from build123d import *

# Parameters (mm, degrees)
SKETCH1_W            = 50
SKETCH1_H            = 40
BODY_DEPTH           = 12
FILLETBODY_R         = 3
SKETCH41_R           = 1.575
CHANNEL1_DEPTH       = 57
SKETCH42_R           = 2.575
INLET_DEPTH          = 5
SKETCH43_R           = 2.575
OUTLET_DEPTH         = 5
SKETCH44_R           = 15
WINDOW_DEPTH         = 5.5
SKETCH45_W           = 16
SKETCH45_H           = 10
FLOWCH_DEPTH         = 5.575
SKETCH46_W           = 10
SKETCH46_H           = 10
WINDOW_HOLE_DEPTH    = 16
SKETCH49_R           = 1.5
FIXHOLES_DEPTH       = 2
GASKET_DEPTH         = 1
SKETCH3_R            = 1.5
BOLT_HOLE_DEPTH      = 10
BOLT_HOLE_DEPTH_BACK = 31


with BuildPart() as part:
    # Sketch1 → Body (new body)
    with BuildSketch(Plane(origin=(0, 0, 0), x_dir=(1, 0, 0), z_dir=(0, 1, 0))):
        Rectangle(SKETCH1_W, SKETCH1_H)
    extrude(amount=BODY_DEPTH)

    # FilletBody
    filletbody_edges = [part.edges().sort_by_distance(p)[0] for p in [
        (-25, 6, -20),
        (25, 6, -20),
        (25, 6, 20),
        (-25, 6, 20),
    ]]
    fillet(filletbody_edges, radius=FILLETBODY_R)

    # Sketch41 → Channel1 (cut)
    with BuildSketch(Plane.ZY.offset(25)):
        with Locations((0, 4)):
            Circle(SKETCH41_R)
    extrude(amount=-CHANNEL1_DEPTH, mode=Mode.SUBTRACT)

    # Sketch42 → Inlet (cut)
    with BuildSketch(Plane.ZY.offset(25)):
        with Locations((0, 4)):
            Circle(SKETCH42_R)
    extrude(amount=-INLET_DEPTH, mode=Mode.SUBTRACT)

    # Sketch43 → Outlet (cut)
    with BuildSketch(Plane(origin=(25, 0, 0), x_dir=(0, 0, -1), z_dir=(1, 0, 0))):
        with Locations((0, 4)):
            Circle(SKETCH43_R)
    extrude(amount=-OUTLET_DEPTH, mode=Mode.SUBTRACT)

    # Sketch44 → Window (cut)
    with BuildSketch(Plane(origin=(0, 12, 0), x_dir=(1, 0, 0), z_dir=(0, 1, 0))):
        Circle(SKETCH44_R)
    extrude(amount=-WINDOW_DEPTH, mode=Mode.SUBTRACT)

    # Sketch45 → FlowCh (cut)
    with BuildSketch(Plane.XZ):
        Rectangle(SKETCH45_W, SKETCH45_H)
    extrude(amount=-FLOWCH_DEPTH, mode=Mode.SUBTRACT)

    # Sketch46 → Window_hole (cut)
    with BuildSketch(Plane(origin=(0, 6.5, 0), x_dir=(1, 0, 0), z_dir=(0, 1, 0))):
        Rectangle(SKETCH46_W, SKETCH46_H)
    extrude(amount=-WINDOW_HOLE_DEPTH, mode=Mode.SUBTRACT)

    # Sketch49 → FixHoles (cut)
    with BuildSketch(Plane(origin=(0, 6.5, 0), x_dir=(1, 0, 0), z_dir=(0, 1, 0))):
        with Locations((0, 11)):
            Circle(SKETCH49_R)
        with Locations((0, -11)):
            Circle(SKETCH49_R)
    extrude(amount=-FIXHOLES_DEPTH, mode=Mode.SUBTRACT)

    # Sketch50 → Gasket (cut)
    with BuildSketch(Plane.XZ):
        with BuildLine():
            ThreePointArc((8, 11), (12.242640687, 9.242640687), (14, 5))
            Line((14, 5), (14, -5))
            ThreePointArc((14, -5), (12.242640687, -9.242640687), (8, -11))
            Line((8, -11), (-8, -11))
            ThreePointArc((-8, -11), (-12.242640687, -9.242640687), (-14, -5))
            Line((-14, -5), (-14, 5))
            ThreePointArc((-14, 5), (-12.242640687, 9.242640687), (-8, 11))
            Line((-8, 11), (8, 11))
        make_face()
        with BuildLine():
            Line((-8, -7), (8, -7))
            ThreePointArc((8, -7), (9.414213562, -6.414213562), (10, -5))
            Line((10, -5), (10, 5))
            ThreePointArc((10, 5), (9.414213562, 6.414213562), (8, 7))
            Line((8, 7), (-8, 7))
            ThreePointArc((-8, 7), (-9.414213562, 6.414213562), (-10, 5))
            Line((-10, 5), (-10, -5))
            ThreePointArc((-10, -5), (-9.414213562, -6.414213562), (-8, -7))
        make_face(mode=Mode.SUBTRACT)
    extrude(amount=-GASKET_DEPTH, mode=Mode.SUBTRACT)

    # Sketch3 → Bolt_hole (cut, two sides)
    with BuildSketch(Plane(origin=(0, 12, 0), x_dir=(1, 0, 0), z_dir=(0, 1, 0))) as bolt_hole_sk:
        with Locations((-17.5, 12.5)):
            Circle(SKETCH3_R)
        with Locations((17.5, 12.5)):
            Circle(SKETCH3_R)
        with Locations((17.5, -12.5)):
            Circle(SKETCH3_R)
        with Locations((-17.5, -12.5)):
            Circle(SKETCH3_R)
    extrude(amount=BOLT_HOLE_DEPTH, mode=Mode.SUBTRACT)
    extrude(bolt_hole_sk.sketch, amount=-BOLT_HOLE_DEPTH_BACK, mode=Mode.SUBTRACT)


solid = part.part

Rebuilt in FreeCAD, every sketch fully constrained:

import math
import FreeCAD as App
import Part
import Sketcher

V = App.Vector


def edges_at(feature, points):
    """Names of the edges that pass closest to the given points."""
    edges = feature.Shape.Edges
    near = lambda p: min(range(len(edges)), key=lambda i: edges[i].distToShape(Part.Vertex(*p))[0])
    return sorted({f"Edge{near(p) + 1}" for p in points})

doc = App.newDocument("Part")
params = doc.addObject("Spreadsheet::Sheet", "Params")
for row, (alias, value) in enumerate([
    ("sketch1_width", "50 mm"),
    ("sketch1_height", "40 mm"),
    ("pad1_length", "12 mm"),
    ("fillet_radius", "3 mm"),
    ("sketch2_diameter", "3.15 mm"),
    ("pocket1_length", "57 mm"),
    ("sketch3_diameter", "5.15 mm"),
    ("pocket2_length", "5 mm"),
    ("sketch4_diameter", "5.15 mm"),
    ("pocket3_length", "5 mm"),
    ("sketch5_diameter", "30 mm"),
    ("pocket4_length", "5.5 mm"),
    ("sketch6_width", "16 mm"),
    ("sketch6_height", "10 mm"),
    ("pocket5_length", "5.575 mm"),
    ("sketch7_width", "10 mm"),
    ("pocket6_length", "16 mm"),
    ("sketch8_diameter", "3 mm"),
    ("pocket7_length", "2 mm"),
    ("sketch9_radius", "6 mm"),
    ("sketch9_radius2", "2 mm"),
    ("sketch9_width", "16 mm"),
    ("sketch9_height", "10 mm"),
    ("pocket8_length", "1 mm"),
    ("sketch10_diameter", "3 mm"),
], start=1):
    params.set(f"A{row}", alias)
    params.set(f"B{row}", "=" + value)
    params.setAlias(f"B{row}", alias)

body = doc.addObject("PartDesign::Body", "Body")

# Sketch on XZ plane
sketch1 = doc.addObject("Sketcher::SketchObject", "Sketch")
body.addObject(sketch1)
sketch1.AttachmentSupport = (doc.XZ_Plane, [""])
sketch1.MapMode = "FlatFace"
sketch1.addGeometry([
    Part.LineSegment(V(-25, -20, 0), V(-25, 20, 0)),
    Part.LineSegment(V(-25, 20, 0), V(25, 20, 0)),
    Part.LineSegment(V(25, 20, 0), V(25, -20, 0)),
    Part.LineSegment(V(25, -20, 0), V(-25, -20, 0)),
], False)
sketch1.addConstraint([
    Sketcher.Constraint("Coincident", 0, 2, 1, 1),
    Sketcher.Constraint("Coincident", 1, 2, 2, 1),
    Sketcher.Constraint("Coincident", 2, 2, 3, 1),
    Sketcher.Constraint("Coincident", 3, 2, 0, 1),
    Sketcher.Constraint("Vertical", 0),
    Sketcher.Constraint("Horizontal", 1),
    Sketcher.Constraint("Vertical", 2),
    Sketcher.Constraint("Horizontal", 3),
    Sketcher.Constraint("Symmetric", 0, 2, 2, 2, -1, 1),
    Sketcher.Constraint("DistanceX", 1, 1, 1, 2, 50.0),
    Sketcher.Constraint("DistanceY", 0, 1, 0, 2, 40.0),
])
sketch1.setExpression("Constraints[9]", "Params.sketch1_width")
sketch1.setExpression("Constraints[10]", "Params.sketch1_height")
pad1 = doc.addObject("PartDesign::Pad", "Pad")
body.addObject(pad1)
pad1.Profile = sketch1
pad1.setExpression("Length", "Params.pad1_length")
pad1.Reversed = True
doc.recompute()

fillet = doc.addObject("PartDesign::Fillet", "Fillet")
body.addObject(fillet)
fillet.Base = (pad1, edges_at(pad1, [
    (-25, 6, -20),
    (25, 6, -20),
    (25, 6, 20),
    (-25, 6, 20),
]))
fillet.setExpression("Radius", "Params.fillet_radius")

# Sketch on YZ plane
sketch2 = doc.addObject("Sketcher::SketchObject", "Sketch001")
body.addObject(sketch2)
sketch2.AttachmentSupport = (doc.YZ_Plane, [""])
sketch2.MapMode = "FlatFace"
sketch2.AttachmentOffset = App.Placement(V(0, 0, -25), App.Rotation())
sketch2.addGeometry(Part.Circle(V(4, 0, 0), V(0, 0, 1), 1.6), False)
sketch2.addConstraint([
    Sketcher.Constraint("PointOnObject", 0, 3, -1),
    Sketcher.Constraint("Diameter", 0, 3.15),
    Sketcher.Constraint("DistanceX", -1, 1, 0, 3, 4.0),
])
sketch2.setExpression("Constraints[1]", "Params.sketch2_diameter")
pocket1 = doc.addObject("PartDesign::Pocket", "Pocket")
body.addObject(pocket1)
pocket1.Profile = sketch2
pocket1.setExpression("Length", "Params.pocket1_length")
pocket1.Reversed = True

# Sketch on YZ plane
sketch3 = doc.addObject("Sketcher::SketchObject", "Sketch002")
body.addObject(sketch3)
sketch3.AttachmentSupport = (doc.YZ_Plane, [""])
sketch3.MapMode = "FlatFace"
sketch3.AttachmentOffset = App.Placement(V(0, 0, -25), App.Rotation())
sketch3.addGeometry(Part.Circle(V(4, 0, 0), V(0, 0, 1), 2.6), False)
sketch3.addConstraint([
    Sketcher.Constraint("PointOnObject", 0, 3, -1),
    Sketcher.Constraint("Diameter", 0, 5.15),
    Sketcher.Constraint("DistanceX", -1, 1, 0, 3, 4.0),
])
sketch3.setExpression("Constraints[1]", "Params.sketch3_diameter")
pocket2 = doc.addObject("PartDesign::Pocket", "Pocket001")
body.addObject(pocket2)
pocket2.Profile = sketch3
pocket2.setExpression("Length", "Params.pocket2_length")
pocket2.Reversed = True

# Sketch on YZ plane
sketch4 = doc.addObject("Sketcher::SketchObject", "Sketch003")
body.addObject(sketch4)
sketch4.AttachmentSupport = (doc.YZ_Plane, [""])
sketch4.MapMode = "FlatFace"
sketch4.AttachmentOffset = App.Placement(V(0, 0, 25), App.Rotation())
sketch4.addGeometry(Part.Circle(V(4, 0, 0), V(0, 0, 1), 2.6), False)
sketch4.addConstraint([
    Sketcher.Constraint("PointOnObject", 0, 3, -1),
    Sketcher.Constraint("Diameter", 0, 5.15),
    Sketcher.Constraint("DistanceX", -1, 1, 0, 3, 4.0),
])
sketch4.setExpression("Constraints[1]", "Params.sketch4_diameter")
pocket3 = doc.addObject("PartDesign::Pocket", "Pocket002")
body.addObject(pocket3)
pocket3.Profile = sketch4
pocket3.setExpression("Length", "Params.pocket3_length")

# Sketch on XZ plane
sketch5 = doc.addObject("Sketcher::SketchObject", "Sketch004")
body.addObject(sketch5)
sketch5.AttachmentSupport = (doc.XZ_Plane, [""])
sketch5.MapMode = "FlatFace"
sketch5.AttachmentOffset = App.Placement(V(0, 0, -12), App.Rotation())
sketch5.addGeometry(Part.Circle(V(0, 0, 0), V(0, 0, 1), 15), False)
sketch5.addConstraint([
    Sketcher.Constraint("Coincident", 0, 3, -1, 1),
    Sketcher.Constraint("Diameter", 0, 30.0),
])
sketch5.setExpression("Constraints[1]", "Params.sketch5_diameter")
pocket4 = doc.addObject("PartDesign::Pocket", "Pocket003")
body.addObject(pocket4)
pocket4.Profile = sketch5
pocket4.setExpression("Length", "Params.pocket4_length")
pocket4.Reversed = True

# Sketch on XZ plane
sketch6 = doc.addObject("Sketcher::SketchObject", "Sketch005")
body.addObject(sketch6)
sketch6.AttachmentSupport = (doc.XZ_Plane, [""])
sketch6.MapMode = "FlatFace"
sketch6.addGeometry([
    Part.LineSegment(V(-8, 5, 0), V(-8, -5, 0)),
    Part.LineSegment(V(-8, -5, 0), V(8, -5, 0)),
    Part.LineSegment(V(8, -5, 0), V(8, 5, 0)),
    Part.LineSegment(V(8, 5, 0), V(-8, 5, 0)),
], False)
sketch6.addConstraint([
    Sketcher.Constraint("Coincident", 0, 2, 1, 1),
    Sketcher.Constraint("Coincident", 1, 2, 2, 1),
    Sketcher.Constraint("Coincident", 2, 2, 3, 1),
    Sketcher.Constraint("Coincident", 3, 2, 0, 1),
    Sketcher.Constraint("Vertical", 0),
    Sketcher.Constraint("Horizontal", 1),
    Sketcher.Constraint("Vertical", 2),
    Sketcher.Constraint("Horizontal", 3),
    Sketcher.Constraint("Symmetric", 0, 2, 2, 2, -1, 1),
    Sketcher.Constraint("DistanceX", 1, 1, 1, 2, 16.0),
    Sketcher.Constraint("DistanceY", 0, 2, 0, 1, 10.0),
])
sketch6.setExpression("Constraints[9]", "Params.sketch6_width")
sketch6.setExpression("Constraints[10]", "Params.sketch6_height")
pocket5 = doc.addObject("PartDesign::Pocket", "Pocket004")
body.addObject(pocket5)
pocket5.Profile = sketch6
pocket5.setExpression("Length", "Params.pocket5_length")

# Sketch on XZ plane
sketch7 = doc.addObject("Sketcher::SketchObject", "Sketch006")
body.addObject(sketch7)
sketch7.AttachmentSupport = (doc.XZ_Plane, [""])
sketch7.MapMode = "FlatFace"
sketch7.AttachmentOffset = App.Placement(V(0, 0, -6.5), App.Rotation())
sketch7.addGeometry([
    Part.LineSegment(V(-5, -5, 0), V(-5, 5, 0)),
    Part.LineSegment(V(-5, 5, 0), V(5, 5, 0)),
    Part.LineSegment(V(5, 5, 0), V(5, -5, 0)),
    Part.LineSegment(V(5, -5, 0), V(-5, -5, 0)),
], False)
sketch7.addConstraint([
    Sketcher.Constraint("Coincident", 0, 2, 1, 1),
    Sketcher.Constraint("Coincident", 1, 2, 2, 1),
    Sketcher.Constraint("Coincident", 2, 2, 3, 1),
    Sketcher.Constraint("Coincident", 3, 2, 0, 1),
    Sketcher.Constraint("Vertical", 0),
    Sketcher.Constraint("Horizontal", 1),
    Sketcher.Constraint("Vertical", 2),
    Sketcher.Constraint("Horizontal", 3),
    Sketcher.Constraint("Symmetric", 0, 2, 2, 2, -1, 1),
    Sketcher.Constraint("Equal", 3, 0),
    Sketcher.Constraint("DistanceX", 1, 1, 1, 2, 10.0),
])
sketch7.setExpression("Constraints[10]", "Params.sketch7_width")
pocket6 = doc.addObject("PartDesign::Pocket", "Pocket005")
body.addObject(pocket6)
pocket6.Profile = sketch7
pocket6.setExpression("Length", "Params.pocket6_length")
pocket6.Reversed = True

# Sketch on XZ plane
sketch8 = doc.addObject("Sketcher::SketchObject", "Sketch007")
body.addObject(sketch8)
sketch8.AttachmentSupport = (doc.XZ_Plane, [""])
sketch8.MapMode = "FlatFace"
sketch8.AttachmentOffset = App.Placement(V(0, 0, -6.5), App.Rotation())
sketch8.addGeometry([
    Part.Circle(V(0, -11, 0), V(0, 0, 1), 1.5),
    Part.Circle(V(0, 11, 0), V(0, 0, 1), 1.5),
], False)
sketch8.addConstraint([
    Sketcher.Constraint("Equal", 0, 1),
    Sketcher.Constraint("Symmetric", 0, 3, 1, 3, -1, 1),
    Sketcher.Constraint("PointOnObject", 0, 3, -2),
    Sketcher.Constraint("Diameter", 0, 3.0),
    Sketcher.Constraint("DistanceY", 0, 3, -1, 1, 11.0),
])
sketch8.setExpression("Constraints[3]", "Params.sketch8_diameter")
pocket7 = doc.addObject("PartDesign::Pocket", "Pocket006")
body.addObject(pocket7)
pocket7.Profile = sketch8
pocket7.setExpression("Length", "Params.pocket7_length")
pocket7.Reversed = True

# Sketch on XZ plane
sketch9 = doc.addObject("Sketcher::SketchObject", "Sketch008")
body.addObject(sketch9)
sketch9.AttachmentSupport = (doc.XZ_Plane, [""])
sketch9.MapMode = "FlatFace"
sketch9.addGeometry([
    Part.ArcOfCircle(Part.Circle(V(8, 5, 0), V(0, 0, 1), 6), math.radians(0), math.radians(90)),  # 0
    Part.LineSegment(V(8, 11, 0), V(-8, 11, 0)),  # 1
    Part.ArcOfCircle(Part.Circle(V(-8, 5, 0), V(0, 0, 1), 6), math.radians(90), math.radians(180)),  # 2
    Part.LineSegment(V(-14, 5, 0), V(-14, -5, 0)),  # 3
    Part.ArcOfCircle(Part.Circle(V(-8, -5, 0), V(0, 0, 1), 6), math.radians(180), math.radians(270)),  # 4
    Part.LineSegment(V(-8, -11, 0), V(8, -11, 0)),  # 5
    Part.ArcOfCircle(Part.Circle(V(8, -5, 0), V(0, 0, 1), 6), math.radians(-90), math.radians(0)),  # 6
    Part.LineSegment(V(14, -5, 0), V(14, 5, 0)),  # 7
    Part.ArcOfCircle(Part.Circle(V(-8, -5, 0), V(0, 0, 1), 2), math.radians(-180), math.radians(-90)),  # 8
    Part.LineSegment(V(-10, -5, 0), V(-10, 5, 0)),  # 9
    Part.ArcOfCircle(Part.Circle(V(-8, 5, 0), V(0, 0, 1), 2), math.radians(90), math.radians(180)),  # 10
    Part.LineSegment(V(-8, 7, 0), V(8, 7, 0)),  # 11
    Part.ArcOfCircle(Part.Circle(V(8, 5, 0), V(0, 0, 1), 2), math.radians(0), math.radians(90)),  # 12
    Part.LineSegment(V(10, 5, 0), V(10, -5, 0)),  # 13
    Part.ArcOfCircle(Part.Circle(V(8, -5, 0), V(0, 0, 1), 2), math.radians(-90), math.radians(0)),  # 14
    Part.LineSegment(V(8, -7, 0), V(-8, -7, 0)),  # 15
], False)
sketch9.addConstraint([
    Sketcher.Constraint("Tangent", 0, 2, 1, 1),
    Sketcher.Constraint("Tangent", 1, 2, 2, 1),
    Sketcher.Constraint("Tangent", 2, 2, 3, 1),
    Sketcher.Constraint("Tangent", 3, 2, 4, 1),
    Sketcher.Constraint("Tangent", 4, 2, 5, 1),
    Sketcher.Constraint("Tangent", 5, 2, 6, 1),
    Sketcher.Constraint("Tangent", 6, 2, 7, 1),
    Sketcher.Constraint("Tangent", 7, 2, 0, 1),
    Sketcher.Constraint("Tangent", 8, 1, 9, 1),
    Sketcher.Constraint("Tangent", 9, 2, 10, 2),
    Sketcher.Constraint("Tangent", 10, 1, 11, 1),
    Sketcher.Constraint("Tangent", 11, 2, 12, 2),
    Sketcher.Constraint("Tangent", 12, 1, 13, 1),
    Sketcher.Constraint("Tangent", 13, 2, 14, 2),
    Sketcher.Constraint("Tangent", 14, 1, 15, 1),
    Sketcher.Constraint("Tangent", 15, 2, 8, 2),
    Sketcher.Constraint("Horizontal", 1),
    Sketcher.Constraint("Vertical", 3),
    Sketcher.Constraint("Horizontal", 5),
    Sketcher.Constraint("Vertical", 7),
    Sketcher.Constraint("Vertical", 9),
    Sketcher.Constraint("Horizontal", 11),
    Sketcher.Constraint("Vertical", 13),
    Sketcher.Constraint("Horizontal", 15),
    Sketcher.Constraint("Coincident", 8, 3, 4, 3),
    Sketcher.Constraint("Coincident", 10, 3, 2, 3),
    Sketcher.Constraint("Coincident", 12, 3, 0, 3),
    Sketcher.Constraint("Equal", 0, 2),
    Sketcher.Constraint("Equal", 2, 4),
    Sketcher.Constraint("Equal", 4, 6),
    Sketcher.Constraint("Equal", 12, 14),
    Sketcher.Constraint("Symmetric", 0, 3, 4, 3, -1, 1),
    Sketcher.Constraint("Radius", 0, 6.0),
    Sketcher.Constraint("Radius", 8, 2.0),
    Sketcher.Constraint("DistanceX", 1, 2, 1, 1, 16.0),
    Sketcher.Constraint("DistanceY", 3, 2, 3, 1, 10.0),
])
sketch9.setExpression("Constraints[32]", "Params.sketch9_radius")
sketch9.setExpression("Constraints[33]", "Params.sketch9_radius2")
sketch9.setExpression("Constraints[34]", "Params.sketch9_width")
sketch9.setExpression("Constraints[35]", "Params.sketch9_height")
pocket8 = doc.addObject("PartDesign::Pocket", "Pocket007")
body.addObject(pocket8)
pocket8.Profile = sketch9
pocket8.setExpression("Length", "Params.pocket8_length")

# Sketch on XZ plane
sketch10 = doc.addObject("Sketcher::SketchObject", "Sketch009")
body.addObject(sketch10)
sketch10.AttachmentSupport = (doc.XZ_Plane, [""])
sketch10.MapMode = "FlatFace"
sketch10.AttachmentOffset = App.Placement(V(0, 0, -12), App.Rotation())
sketch10.addGeometry([
    Part.Circle(V(-17.5, -12.5, 0), V(0, 0, 1), 1.5),
    Part.Circle(V(17.5, -12.5, 0), V(0, 0, 1), 1.5),
    Part.Circle(V(17.5, 12.5, 0), V(0, 0, 1), 1.5),
    Part.Circle(V(-17.5, 12.5, 0), V(0, 0, 1), 1.5),
], False)
sketch10.addConstraint([
    Sketcher.Constraint("Equal", 0, 1),
    Sketcher.Constraint("Equal", 1, 2),
    Sketcher.Constraint("Equal", 2, 3),
    Sketcher.Constraint("Symmetric", 0, 3, 2, 3, -1, 1),
    Sketcher.Constraint("Symmetric", 1, 3, 3, 3, -1, 1),
    Sketcher.Constraint("Symmetric", 0, 3, 1, 3, -2),
    Sketcher.Constraint("Diameter", 0, 3.0),
    Sketcher.Constraint("DistanceX", 0, 3, 1, 3, 35.0),
    Sketcher.Constraint("DistanceY", 1, 3, 2, 3, 25.0),
])
sketch10.setExpression("Constraints[6]", "Params.sketch10_diameter")
pocket9 = doc.addObject("PartDesign::Pocket", "Pocket008")
body.addObject(pocket9)
pocket9.Profile = sketch10
pocket9.Type = "ThroughAll"
pocket9.Midplane = True

doc.recompute()
